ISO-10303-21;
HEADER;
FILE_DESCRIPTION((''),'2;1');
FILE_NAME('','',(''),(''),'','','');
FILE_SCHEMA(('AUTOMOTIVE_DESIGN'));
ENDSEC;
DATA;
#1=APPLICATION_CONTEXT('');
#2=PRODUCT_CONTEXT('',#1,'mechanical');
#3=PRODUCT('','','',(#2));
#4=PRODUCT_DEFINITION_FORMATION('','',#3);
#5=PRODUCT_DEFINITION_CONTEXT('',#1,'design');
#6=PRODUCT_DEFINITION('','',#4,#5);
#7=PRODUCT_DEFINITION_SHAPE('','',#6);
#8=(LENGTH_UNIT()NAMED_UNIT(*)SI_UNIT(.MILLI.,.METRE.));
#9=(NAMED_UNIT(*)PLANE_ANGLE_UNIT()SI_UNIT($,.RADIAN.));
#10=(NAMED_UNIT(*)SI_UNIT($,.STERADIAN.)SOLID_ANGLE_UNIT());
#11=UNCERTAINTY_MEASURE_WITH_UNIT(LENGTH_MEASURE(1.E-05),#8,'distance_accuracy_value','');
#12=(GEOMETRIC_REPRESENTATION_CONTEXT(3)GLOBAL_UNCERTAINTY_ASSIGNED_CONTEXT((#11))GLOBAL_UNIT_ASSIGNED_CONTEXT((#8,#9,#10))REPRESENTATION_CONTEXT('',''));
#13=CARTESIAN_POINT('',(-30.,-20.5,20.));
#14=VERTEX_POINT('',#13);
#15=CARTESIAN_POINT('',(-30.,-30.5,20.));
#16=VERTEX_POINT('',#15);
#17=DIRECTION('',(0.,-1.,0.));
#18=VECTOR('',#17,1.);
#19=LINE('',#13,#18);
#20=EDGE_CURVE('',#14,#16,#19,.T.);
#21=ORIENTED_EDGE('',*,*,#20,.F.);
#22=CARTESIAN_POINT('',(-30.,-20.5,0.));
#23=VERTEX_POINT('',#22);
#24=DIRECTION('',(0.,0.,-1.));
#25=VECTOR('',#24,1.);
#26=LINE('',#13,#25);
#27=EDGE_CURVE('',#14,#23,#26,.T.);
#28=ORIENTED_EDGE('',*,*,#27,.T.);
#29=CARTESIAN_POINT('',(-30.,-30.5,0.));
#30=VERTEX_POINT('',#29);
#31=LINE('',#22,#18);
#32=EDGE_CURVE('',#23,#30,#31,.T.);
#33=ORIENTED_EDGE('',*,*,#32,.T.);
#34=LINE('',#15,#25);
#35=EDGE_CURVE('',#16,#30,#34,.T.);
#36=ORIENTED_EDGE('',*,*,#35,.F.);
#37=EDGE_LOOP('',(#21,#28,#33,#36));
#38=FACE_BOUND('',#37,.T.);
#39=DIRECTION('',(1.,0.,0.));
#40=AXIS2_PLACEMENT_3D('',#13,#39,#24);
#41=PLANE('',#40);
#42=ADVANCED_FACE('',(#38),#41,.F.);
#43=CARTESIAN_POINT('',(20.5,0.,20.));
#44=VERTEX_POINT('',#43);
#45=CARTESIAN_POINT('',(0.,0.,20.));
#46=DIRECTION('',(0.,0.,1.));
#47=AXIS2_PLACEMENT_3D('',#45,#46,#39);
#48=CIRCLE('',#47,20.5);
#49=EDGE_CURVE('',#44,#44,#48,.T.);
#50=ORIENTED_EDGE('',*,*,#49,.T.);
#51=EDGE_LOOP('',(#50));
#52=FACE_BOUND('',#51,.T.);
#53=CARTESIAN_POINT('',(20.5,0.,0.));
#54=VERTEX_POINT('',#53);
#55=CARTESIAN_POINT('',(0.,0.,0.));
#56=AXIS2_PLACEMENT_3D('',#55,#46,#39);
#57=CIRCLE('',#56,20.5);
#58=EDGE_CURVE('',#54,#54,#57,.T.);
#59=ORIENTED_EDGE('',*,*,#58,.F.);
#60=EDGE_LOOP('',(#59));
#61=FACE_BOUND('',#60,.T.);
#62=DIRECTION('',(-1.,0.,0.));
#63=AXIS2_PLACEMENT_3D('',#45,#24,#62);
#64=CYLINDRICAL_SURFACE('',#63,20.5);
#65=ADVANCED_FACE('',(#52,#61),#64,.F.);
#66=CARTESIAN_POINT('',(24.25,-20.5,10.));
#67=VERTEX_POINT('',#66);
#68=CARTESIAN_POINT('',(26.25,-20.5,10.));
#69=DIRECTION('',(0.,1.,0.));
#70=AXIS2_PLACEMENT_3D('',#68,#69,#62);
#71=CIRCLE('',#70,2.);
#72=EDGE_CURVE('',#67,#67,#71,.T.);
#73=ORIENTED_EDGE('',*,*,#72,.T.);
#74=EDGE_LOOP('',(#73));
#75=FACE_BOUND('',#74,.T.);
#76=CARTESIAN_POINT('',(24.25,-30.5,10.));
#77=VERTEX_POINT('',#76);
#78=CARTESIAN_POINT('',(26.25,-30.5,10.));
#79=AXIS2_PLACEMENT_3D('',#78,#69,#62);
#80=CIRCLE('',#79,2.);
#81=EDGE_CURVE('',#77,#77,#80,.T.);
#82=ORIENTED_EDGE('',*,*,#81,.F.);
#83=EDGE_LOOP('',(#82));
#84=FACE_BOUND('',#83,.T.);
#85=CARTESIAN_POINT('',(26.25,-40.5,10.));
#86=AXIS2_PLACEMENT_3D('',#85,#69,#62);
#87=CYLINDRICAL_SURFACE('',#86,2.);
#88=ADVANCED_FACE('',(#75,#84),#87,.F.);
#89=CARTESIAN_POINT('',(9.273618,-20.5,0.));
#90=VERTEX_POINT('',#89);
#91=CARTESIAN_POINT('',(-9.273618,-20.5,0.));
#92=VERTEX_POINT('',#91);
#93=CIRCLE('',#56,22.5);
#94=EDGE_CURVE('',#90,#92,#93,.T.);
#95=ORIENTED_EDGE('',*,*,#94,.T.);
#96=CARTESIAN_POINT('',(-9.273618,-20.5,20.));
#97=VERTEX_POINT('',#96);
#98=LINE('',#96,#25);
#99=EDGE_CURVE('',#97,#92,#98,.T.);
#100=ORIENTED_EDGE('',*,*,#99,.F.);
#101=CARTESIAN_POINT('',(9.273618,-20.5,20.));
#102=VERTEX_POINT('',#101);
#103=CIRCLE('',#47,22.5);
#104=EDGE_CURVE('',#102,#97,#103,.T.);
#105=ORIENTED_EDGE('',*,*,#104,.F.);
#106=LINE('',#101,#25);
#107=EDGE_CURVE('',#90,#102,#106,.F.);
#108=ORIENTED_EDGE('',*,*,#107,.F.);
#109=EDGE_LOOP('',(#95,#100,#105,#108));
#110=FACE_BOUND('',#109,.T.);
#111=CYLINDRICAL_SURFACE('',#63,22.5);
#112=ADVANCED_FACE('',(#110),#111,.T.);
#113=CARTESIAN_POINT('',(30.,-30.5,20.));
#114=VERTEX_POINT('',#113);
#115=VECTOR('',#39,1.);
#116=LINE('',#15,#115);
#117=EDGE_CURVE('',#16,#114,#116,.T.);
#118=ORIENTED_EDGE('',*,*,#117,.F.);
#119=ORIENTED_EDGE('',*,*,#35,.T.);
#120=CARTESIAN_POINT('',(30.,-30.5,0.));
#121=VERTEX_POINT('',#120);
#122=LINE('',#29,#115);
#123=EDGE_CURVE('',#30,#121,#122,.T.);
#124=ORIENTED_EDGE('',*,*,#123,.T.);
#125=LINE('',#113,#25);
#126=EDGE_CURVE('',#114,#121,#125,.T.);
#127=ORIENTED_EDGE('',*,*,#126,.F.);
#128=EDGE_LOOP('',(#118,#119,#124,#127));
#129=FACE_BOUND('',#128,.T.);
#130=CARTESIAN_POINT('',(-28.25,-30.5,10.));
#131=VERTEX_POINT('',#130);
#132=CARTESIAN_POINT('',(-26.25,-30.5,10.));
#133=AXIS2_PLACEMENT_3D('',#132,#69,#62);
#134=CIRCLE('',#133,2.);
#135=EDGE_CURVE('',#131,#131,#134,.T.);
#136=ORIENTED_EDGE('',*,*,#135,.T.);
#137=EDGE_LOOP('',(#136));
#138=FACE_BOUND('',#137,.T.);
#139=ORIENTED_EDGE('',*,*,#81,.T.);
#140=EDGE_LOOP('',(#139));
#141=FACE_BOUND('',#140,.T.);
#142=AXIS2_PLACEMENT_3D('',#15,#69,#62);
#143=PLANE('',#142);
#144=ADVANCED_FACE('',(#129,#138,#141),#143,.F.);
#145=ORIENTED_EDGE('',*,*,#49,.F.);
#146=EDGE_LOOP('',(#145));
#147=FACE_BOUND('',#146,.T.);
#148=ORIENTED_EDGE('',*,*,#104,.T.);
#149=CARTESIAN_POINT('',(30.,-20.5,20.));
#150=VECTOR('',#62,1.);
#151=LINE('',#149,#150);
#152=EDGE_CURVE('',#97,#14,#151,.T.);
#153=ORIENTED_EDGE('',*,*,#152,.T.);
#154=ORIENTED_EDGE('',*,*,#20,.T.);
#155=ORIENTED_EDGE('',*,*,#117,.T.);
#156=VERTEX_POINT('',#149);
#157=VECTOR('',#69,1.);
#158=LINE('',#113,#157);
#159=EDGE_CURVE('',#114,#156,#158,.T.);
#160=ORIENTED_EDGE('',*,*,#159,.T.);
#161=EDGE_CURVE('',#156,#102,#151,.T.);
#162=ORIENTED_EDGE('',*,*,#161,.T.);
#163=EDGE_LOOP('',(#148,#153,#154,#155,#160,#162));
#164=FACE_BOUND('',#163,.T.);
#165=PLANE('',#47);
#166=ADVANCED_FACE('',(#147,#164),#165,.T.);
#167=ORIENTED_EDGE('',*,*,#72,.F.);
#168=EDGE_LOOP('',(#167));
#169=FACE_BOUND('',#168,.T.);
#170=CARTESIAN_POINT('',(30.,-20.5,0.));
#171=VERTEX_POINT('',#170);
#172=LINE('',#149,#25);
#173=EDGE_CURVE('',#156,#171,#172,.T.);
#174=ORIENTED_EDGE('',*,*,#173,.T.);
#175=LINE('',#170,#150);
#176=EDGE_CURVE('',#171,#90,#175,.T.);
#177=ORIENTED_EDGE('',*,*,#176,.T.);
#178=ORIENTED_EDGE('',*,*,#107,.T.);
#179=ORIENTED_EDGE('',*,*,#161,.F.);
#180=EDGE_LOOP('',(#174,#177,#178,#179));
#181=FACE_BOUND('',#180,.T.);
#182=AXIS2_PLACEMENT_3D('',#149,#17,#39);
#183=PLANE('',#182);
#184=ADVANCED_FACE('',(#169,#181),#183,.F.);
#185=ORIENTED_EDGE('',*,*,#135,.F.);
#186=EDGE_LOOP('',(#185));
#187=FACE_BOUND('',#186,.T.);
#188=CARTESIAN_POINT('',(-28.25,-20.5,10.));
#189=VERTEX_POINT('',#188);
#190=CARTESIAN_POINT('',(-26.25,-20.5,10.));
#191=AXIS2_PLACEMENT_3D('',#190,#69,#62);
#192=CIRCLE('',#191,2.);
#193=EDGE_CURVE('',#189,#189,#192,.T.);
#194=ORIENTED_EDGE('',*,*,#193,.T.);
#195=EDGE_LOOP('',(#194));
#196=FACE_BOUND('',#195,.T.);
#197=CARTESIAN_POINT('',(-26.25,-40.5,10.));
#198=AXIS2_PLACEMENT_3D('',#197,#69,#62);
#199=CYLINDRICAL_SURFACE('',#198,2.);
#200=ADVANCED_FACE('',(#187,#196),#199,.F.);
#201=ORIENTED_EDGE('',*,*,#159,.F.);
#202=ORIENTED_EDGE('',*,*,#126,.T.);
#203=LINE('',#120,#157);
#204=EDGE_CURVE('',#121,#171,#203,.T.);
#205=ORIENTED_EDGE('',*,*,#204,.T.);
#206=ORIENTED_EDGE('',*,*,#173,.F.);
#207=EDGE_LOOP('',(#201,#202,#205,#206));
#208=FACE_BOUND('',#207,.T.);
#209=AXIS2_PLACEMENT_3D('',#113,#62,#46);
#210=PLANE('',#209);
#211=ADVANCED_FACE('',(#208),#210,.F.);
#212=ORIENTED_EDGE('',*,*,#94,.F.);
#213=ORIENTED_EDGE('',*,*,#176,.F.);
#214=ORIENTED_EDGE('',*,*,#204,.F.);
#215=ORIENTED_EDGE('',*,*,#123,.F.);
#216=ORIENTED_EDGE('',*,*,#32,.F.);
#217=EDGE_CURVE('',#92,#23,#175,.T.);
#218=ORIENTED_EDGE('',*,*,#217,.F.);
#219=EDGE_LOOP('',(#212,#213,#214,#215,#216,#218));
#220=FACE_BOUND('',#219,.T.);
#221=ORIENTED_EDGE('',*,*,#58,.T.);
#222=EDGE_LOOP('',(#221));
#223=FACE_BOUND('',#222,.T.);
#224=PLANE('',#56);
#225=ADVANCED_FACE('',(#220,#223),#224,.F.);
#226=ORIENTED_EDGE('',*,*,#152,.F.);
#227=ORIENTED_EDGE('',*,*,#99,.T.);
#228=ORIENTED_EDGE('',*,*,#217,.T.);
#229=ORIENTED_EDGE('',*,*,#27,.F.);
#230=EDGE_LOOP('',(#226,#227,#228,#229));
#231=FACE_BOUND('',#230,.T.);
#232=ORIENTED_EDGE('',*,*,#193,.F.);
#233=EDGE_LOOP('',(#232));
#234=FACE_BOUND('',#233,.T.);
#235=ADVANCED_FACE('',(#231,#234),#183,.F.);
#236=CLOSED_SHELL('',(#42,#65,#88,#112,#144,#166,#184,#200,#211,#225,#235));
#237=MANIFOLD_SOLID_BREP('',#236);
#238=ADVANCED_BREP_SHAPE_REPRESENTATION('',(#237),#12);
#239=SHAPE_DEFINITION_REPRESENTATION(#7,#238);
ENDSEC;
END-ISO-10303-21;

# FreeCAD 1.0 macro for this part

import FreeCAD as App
import Part
import Sketcher

V = App.Vector

doc = App.newDocument("Part")
body = doc.addObject("PartDesign::Body", "Body")

# Sketch on XY plane
sketch1 = body.newObject("Sketcher::SketchObject", "Sketch")
sketch1.AttachmentSupport = (doc.getObject("XY_Plane"), [""])
sketch1.MapMode = "FlatFace"
sketch1.addGeometry(Part.Circle(V(0, 0, 0), V(0, 0, 1), 22), False)
sketch1.addGeometry(Part.Circle(V(0, 0, 0), V(0, 0, 1), 20), False)
sketch1.addConstraint(Sketcher.Constraint("Coincident", 0, 3, -1, 1))
sketch1.addConstraint(Sketcher.Constraint("Coincident", 1, 3, -1, 1))
sketch1.addConstraint(Sketcher.Constraint("Diameter", 0, 45.0))
sketch1.addConstraint(Sketcher.Constraint("Diameter", 1, 41.0))
pad1 = body.newObject("PartDesign::Pad", "Pad")
pad1.Profile = sketch1
pad1.Length = 20

# Sketch on XY plane
sketch2 = body.newObject("Sketcher::SketchObject", "Sketch001")
sketch2.AttachmentSupport = (doc.getObject("XY_Plane"), [""])
sketch2.MapMode = "FlatFace"
sketch2.addGeometry(Part.LineSegment(V(30, -20, 0), V(30, -30, 0)), False)
sketch2.addGeometry(Part.LineSegment(V(30, -30, 0), V(-30, -30, 0)), False)
sketch2.addGeometry(Part.LineSegment(V(-30, -30, 0), V(-30, -20, 0)), False)
sketch2.addGeometry(Part.LineSegment(V(-30, -20, 0), V(30, -20, 0)), False)
sketch2.addConstraint(Sketcher.Constraint("Coincident", 0, 2, 1, 1))
sketch2.addConstraint(Sketcher.Constraint("Coincident", 1, 2, 2, 1))
sketch2.addConstraint(Sketcher.Constraint("Coincident", 2, 2, 3, 1))
sketch2.addConstraint(Sketcher.Constraint("Coincident", 3, 2, 0, 1))
sketch2.addConstraint(Sketcher.Constraint("Vertical", 0))
sketch2.addConstraint(Sketcher.Constraint("Horizontal", 1))
sketch2.addConstraint(Sketcher.Constraint("Vertical", 2))
sketch2.addConstraint(Sketcher.Constraint("Horizontal", 3))
sketch2.addConstraint(Sketcher.Constraint("DistanceX", 1, 2, 1, 1, 60.0))
sketch2.addConstraint(Sketcher.Constraint("DistanceY", 0, 2, 0, 1, 10.0))
sketch2.addConstraint(Sketcher.Constraint("DistanceX", -1, 1, 0, 2, 30.0))
sketch2.addConstraint(Sketcher.Constraint("DistanceY", 0, 2, -1, 1, 30.5))
pad2 = body.newObject("PartDesign::Pad", "Pad001")
pad2.Profile = sketch2
pad2.Length = 20

# Sketch on XZ plane
sketch3 = body.newObject("Sketcher::SketchObject", "Sketch002")
sketch3.AttachmentSupport = (doc.getObject("XZ_Plane"), [""])
sketch3.MapMode = "FlatFace"
sketch3.AttachmentOffset = App.Placement(V(0, 0, 20.5), App.Rotation())
sketch3.addGeometry(Part.Circle(V(26.2, 10, 0), V(0, 0, 1), 2), False)
sketch3.addGeometry(Part.Circle(V(-26.2, 10, 0), V(0, 0, 1), 2), False)
sketch3.addConstraint(Sketcher.Constraint("Equal", 0, 1))
sketch3.addConstraint(Sketcher.Constraint("Symmetric", 0, 3, 1, 3, -2))
sketch3.addConstraint(Sketcher.Constraint("Diameter", 0, 4.0))
sketch3.addConstraint(Sketcher.Constraint("DistanceY", -1, 1, 0, 3, 10.0))
sketch3.addConstraint(Sketcher.Constraint("DistanceX", 1, 3, 0, 3, 52.5))
pocket1 = body.newObject("PartDesign::Pocket", "Pocket")
pocket1.Profile = sketch3
pocket1.Length = 20
pocket1.Reversed = True

doc.recompute()
